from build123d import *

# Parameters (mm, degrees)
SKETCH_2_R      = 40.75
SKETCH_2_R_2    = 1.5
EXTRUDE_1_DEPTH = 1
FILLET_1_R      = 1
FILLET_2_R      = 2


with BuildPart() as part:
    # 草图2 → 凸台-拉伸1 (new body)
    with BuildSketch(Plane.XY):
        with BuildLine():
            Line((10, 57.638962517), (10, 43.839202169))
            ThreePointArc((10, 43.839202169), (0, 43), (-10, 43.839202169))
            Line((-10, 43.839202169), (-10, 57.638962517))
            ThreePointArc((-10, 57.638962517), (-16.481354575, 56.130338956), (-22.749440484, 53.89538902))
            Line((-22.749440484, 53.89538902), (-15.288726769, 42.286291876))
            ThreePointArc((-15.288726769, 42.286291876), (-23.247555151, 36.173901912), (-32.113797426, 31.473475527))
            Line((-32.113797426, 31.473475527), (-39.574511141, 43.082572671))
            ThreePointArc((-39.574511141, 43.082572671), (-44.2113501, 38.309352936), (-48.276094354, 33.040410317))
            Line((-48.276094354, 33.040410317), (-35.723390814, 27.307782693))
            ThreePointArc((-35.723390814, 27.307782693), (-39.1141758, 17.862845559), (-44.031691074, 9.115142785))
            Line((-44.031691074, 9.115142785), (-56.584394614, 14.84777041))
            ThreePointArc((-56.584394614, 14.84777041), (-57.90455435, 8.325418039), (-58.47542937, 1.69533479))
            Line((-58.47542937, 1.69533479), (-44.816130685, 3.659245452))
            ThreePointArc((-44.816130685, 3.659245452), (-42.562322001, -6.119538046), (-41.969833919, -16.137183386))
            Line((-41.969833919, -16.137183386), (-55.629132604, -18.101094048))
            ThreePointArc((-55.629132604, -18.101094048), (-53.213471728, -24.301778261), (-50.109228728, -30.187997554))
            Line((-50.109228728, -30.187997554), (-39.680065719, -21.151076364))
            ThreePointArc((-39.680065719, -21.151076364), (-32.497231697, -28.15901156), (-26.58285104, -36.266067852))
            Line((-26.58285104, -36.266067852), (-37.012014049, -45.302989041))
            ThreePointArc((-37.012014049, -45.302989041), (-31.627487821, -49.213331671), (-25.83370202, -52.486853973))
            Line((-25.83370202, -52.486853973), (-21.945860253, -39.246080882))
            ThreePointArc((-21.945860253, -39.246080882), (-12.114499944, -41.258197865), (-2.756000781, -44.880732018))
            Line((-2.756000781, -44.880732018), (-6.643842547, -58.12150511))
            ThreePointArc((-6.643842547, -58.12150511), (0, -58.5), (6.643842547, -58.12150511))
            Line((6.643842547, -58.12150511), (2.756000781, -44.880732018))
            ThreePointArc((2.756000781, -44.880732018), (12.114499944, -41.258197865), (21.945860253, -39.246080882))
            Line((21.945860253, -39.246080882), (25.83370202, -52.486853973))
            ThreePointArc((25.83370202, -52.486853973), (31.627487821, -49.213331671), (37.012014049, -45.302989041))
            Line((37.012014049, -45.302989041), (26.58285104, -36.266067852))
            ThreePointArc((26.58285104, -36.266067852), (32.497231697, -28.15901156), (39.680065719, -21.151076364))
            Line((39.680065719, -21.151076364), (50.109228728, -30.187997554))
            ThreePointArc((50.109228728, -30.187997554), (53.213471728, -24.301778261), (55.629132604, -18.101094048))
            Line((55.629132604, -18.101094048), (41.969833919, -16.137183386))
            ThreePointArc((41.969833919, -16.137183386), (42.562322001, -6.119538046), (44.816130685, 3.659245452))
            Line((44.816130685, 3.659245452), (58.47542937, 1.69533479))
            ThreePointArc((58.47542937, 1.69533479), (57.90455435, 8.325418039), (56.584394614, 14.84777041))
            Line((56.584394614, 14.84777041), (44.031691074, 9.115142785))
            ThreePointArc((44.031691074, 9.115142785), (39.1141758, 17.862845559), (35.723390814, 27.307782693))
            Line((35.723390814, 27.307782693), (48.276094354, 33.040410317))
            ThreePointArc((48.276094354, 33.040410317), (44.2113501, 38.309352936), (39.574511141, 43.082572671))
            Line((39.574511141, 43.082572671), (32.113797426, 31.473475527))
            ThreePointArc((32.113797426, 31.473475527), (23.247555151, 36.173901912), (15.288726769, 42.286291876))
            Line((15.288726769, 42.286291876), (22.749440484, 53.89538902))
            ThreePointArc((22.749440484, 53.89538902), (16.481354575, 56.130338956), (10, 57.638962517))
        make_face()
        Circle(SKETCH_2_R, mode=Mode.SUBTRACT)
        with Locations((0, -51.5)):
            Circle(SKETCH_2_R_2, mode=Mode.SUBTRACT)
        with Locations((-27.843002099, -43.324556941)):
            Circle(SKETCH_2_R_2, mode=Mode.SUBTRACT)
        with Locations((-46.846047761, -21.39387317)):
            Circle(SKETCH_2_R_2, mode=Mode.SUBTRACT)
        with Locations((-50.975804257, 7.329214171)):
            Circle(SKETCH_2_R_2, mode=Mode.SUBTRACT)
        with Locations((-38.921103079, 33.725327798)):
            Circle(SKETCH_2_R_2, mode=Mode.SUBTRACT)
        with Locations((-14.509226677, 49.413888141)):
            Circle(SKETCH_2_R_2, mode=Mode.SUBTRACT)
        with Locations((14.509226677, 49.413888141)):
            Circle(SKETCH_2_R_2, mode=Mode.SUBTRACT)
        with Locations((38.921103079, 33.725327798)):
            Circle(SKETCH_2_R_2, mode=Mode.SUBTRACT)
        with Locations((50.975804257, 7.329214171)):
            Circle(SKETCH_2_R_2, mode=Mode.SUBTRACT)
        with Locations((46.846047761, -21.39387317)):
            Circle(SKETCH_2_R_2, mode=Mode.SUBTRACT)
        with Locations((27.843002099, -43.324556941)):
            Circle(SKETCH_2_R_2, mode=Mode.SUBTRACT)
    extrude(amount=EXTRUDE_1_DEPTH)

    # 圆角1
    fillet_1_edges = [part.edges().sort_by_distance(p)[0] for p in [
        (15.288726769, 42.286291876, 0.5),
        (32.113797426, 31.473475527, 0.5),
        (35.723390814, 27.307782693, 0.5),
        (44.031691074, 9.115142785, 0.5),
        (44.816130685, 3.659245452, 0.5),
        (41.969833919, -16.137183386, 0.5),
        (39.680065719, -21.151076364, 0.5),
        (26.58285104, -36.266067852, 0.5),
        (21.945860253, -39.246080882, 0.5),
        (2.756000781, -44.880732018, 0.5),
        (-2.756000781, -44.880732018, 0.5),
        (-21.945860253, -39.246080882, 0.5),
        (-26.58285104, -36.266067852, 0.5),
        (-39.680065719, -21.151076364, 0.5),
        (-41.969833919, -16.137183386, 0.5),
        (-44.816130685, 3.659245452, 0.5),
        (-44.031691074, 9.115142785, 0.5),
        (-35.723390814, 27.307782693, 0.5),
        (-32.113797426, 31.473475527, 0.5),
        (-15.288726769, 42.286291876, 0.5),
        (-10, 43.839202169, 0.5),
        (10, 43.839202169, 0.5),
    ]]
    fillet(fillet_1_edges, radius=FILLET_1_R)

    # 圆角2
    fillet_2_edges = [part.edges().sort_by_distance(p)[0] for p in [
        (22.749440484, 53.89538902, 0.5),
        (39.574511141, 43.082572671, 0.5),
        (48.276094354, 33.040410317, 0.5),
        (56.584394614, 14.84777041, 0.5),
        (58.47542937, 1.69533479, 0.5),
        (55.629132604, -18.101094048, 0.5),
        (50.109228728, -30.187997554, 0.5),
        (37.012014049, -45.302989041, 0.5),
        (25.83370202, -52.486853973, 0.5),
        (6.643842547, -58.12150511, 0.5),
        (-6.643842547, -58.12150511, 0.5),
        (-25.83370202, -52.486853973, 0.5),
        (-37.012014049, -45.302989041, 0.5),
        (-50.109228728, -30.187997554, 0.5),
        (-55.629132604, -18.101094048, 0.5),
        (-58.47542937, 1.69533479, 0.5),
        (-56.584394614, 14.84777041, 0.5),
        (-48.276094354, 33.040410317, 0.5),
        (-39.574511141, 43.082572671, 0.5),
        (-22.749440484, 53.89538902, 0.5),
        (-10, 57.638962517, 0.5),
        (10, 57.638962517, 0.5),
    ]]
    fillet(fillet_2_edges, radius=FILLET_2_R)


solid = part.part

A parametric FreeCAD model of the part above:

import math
import FreeCAD as App
import Part
import Sketcher

V = App.Vector
Q = App.Units.Quantity


def edges_at(feature, points):
    """Names of the edges that pass closest to the given points."""
    edges = feature.Shape.Edges
    near = lambda p: min(range(len(edges)), key=lambda i: edges[i].distToShape(Part.Vertex(*p))[0])
    return sorted({f"Edge{near(p) + 1}" for p in points})

doc = App.newDocument("Part")
body = doc.addObject("PartDesign::Body", "Body")

# Sketch on XY plane
sketch1 = doc.addObject("Sketcher::SketchObject", "Sketch")
body.addObject(sketch1)
sketch1.AttachmentSupport = (doc.XY_Plane, [""])
sketch1.MapMode = "FlatFace"
sketch1.addGeometry([
    Part.LineSegment(V(10, 57.638963, 0), V(10, 43.839202, 0)),  # 0
    Part.ArcOfCircle(Part.Circle(V(0, 103, 0), V(0, 0, 1), 60), math.radians(-99.594068), math.radians(-80.405932)),  # 1
    Part.LineSegment(V(-10, 43.839202, 0), V(-10, 57.638963, 0)),  # 2
    Part.ArcOfCircle(Part.Circle(V(0, 0, 0), V(0, 0, 1), 58.5), math.radians(99.842487), math.radians(112.884786)),  # 3
    Part.LineSegment(V(-22.74944, 53.895389, 0), V(-15.288727, 42.286292, 0)),  # 4
    Part.ArcOfCircle(Part.Circle(V(-55.686004, 86.649114, 0), V(0, 0, 1), 60), math.radians(-66.866796), math.radians(-47.678659)),  # 5
    Part.LineSegment(V(-32.113797, 31.473476, 0), V(-39.574511, 43.082573, 0)),  # 6
    Part.ArcOfCircle(Part.Circle(V(0, 0, 0), V(0, 0, 1), 58.5), math.radians(132.56976), math.radians(145.612058)),  # 7
    Part.LineSegment(V(-48.276094, 33.04041, 0), V(-35.723391, 27.307783, 0)),  # 8
    Part.ArcOfCircle(Part.Circle(V(-93.692095, 42.787746, 0), V(0, 0, 1), 60), math.radians(-34.139523), math.radians(-14.951386)),  # 9
    Part.LineSegment(V(-44.031691, 9.115143, 0), V(-56.584395, 14.84777, 0)),  # 10
    Part.ArcOfCircle(Part.Circle(V(0, 0, 0), V(0, 0, 1), 58.5), math.radians(165.297033), math.radians(178.339331)),  # 11
    Part.LineSegment(V(-58.475429, 1.695335, 0), V(-44.816131, 3.659245, 0)),  # 12
    Part.ArcOfCircle(Part.Circle(V(-101.951609, -14.658428, 0), V(0, 0, 1), 60), math.radians(-1.41225), math.radians(17.775886)),  # 13
    Part.LineSegment(V(-41.969834, -16.137183, 0), V(-55.629133, -18.101094, 0)),  # 14
    Part.ArcOfCircle(Part.Circle(V(0, 0, 0), V(0, 0, 1), 58.5), math.radians(-161.975695), math.radians(-148.933396)),  # 15
    Part.LineSegment(V(-50.109229, -30.187998, 0), V(-39.680066, -21.151076, 0)),  # 16
    Part.ArcOfCircle(Part.Circle(V(-77.842206, -67.450656, 0), V(0, 0, 1), 60), math.radians(31.315023), math.radians(50.503159)),  # 17
    Part.LineSegment(V(-26.582851, -36.266068, 0), V(-37.012014, -45.302989, 0)),  # 18
    Part.ArcOfCircle(Part.Circle(V(0, 0, 0), V(0, 0, 1), 58.5), math.radians(-129.248422), math.radians(-116.206123)),  # 19
    Part.LineSegment(V(-25.833702, -52.486854, 0), V(-21.94586, -39.246081, 0)),  # 20
    Part.ArcOfCircle(Part.Circle(V(-29.018453, -98.827776, 0), V(0, 0, 1), 60), math.radians(64.042295), math.radians(83.230432)),  # 21
    Part.LineSegment(V(-2.756001, -44.880732, 0), V(-6.643843, -58.121505, 0)),  # 22
    Part.ArcOfCircle(Part.Circle(V(0, 0, 0), V(0, 0, 1), 58.5), math.radians(-96.521149), math.radians(-83.478851)),  # 23
    Part.LineSegment(V(6.643843, -58.121505, 0), V(2.756001, -44.880732, 0)),  # 24
    Part.ArcOfCircle(Part.Circle(V(29.018453, -98.827776, 0), V(0, 0, 1), 60), math.radians(96.769568), math.radians(115.957705)),  # 25
    Part.LineSegment(V(21.94586, -39.246081, 0), V(25.833702, -52.486854, 0)),  # 26
    Part.ArcOfCircle(Part.Circle(V(0, 0, 0), V(0, 0, 1), 58.5), math.radians(-63.793877), math.radians(-50.751578)),  # 27
    Part.LineSegment(V(37.012014, -45.302989, 0), V(26.582851, -36.266068, 0)),  # 28
    Part.ArcOfCircle(Part.Circle(V(77.842206, -67.450656, 0), V(0, 0, 1), 60), math.radians(129.496841), math.radians(148.684977)),  # 29
    Part.LineSegment(V(39.680066, -21.151076, 0), V(50.109229, -30.187998, 0)),  # 30
    Part.ArcOfCircle(Part.Circle(V(0, 0, 0), V(0, 0, 1), 58.5), math.radians(-31.066604), math.radians(-18.024305)),  # 31
    Part.LineSegment(V(55.629133, -18.101094, 0), V(41.969834, -16.137183, 0)),  # 32
    Part.ArcOfCircle(Part.Circle(V(101.951609, -14.658428, 0), V(0, 0, 1), 60), math.radians(162.224114), math.radians(181.41225)),  # 33
    Part.LineSegment(V(44.816131, 3.659245, 0), V(58.475429, 1.695335, 0)),  # 34
    Part.ArcOfCircle(Part.Circle(V(0, 0, 0), V(0, 0, 1), 58.5), math.radians(1.660669), math.radians(14.702967)),  # 35
    Part.LineSegment(V(56.584395, 14.84777, 0), V(44.031691, 9.115143, 0)),  # 36
    Part.ArcOfCircle(Part.Circle(V(93.692095, 42.787746, 0), V(0, 0, 1), 60), math.radians(-165.048614), math.radians(-145.860477)),  # 37
    Part.LineSegment(V(35.723391, 27.307783, 0), V(48.276094, 33.04041, 0)),  # 38
    Part.ArcOfCircle(Part.Circle(V(0, 0, 0), V(0, 0, 1), 58.5), math.radians(34.387942), math.radians(47.43024)),  # 39
    Part.LineSegment(V(39.574511, 43.082573, 0), V(32.113797, 31.473476, 0)),  # 40
    Part.ArcOfCircle(Part.Circle(V(55.686004, 86.649114, 0), V(0, 0, 1), 60), math.radians(-132.321341), math.radians(-113.133204)),  # 41
    Part.LineSegment(V(15.288727, 42.286292, 0), V(22.74944, 53.895389, 0)),  # 42
    Part.ArcOfCircle(Part.Circle(V(0, 0, 0), V(0, 0, 1), 58.5), math.radians(67.115214), math.radians(80.157513)),  # 43
    Part.Circle(V(-27.843002, -43.324557, 0), V(0, 0, 1), 1.5),  # 44
    Part.Circle(V(-46.846048, -21.393873, 0), V(0, 0, 1), 1.5),  # 45
    Part.Circle(V(0, -51.5, 0), V(0, 0, 1), 1.5),  # 46
    Part.Circle(V(27.843002, -43.324557, 0), V(0, 0, 1), 1.5),  # 47
    Part.Circle(V(46.846048, -21.393873, 0), V(0, 0, 1), 1.5),  # 48
    Part.Circle(V(-50.975804, 7.329214, 0), V(0, 0, 1), 1.5),  # 49
    Part.Circle(V(-38.921103, 33.725328, 0), V(0, 0, 1), 1.5),  # 50
    Part.Circle(V(-14.509227, 49.413888, 0), V(0, 0, 1), 1.5),  # 51
    Part.Circle(V(0, 0, 0), V(0, 0, 1), 40.75),  # 52
    Part.Circle(V(50.975804, 7.329214, 0), V(0, 0, 1), 1.5),  # 53
    Part.Circle(V(14.509227, 49.413888, 0), V(0, 0, 1), 1.5),  # 54
    Part.Circle(V(38.921103, 33.725328, 0), V(0, 0, 1), 1.5),  # 55
], False)
sketch1.addConstraint([
    Sketcher.Constraint("Coincident", 0, 2, 1, 2),
    Sketcher.Constraint("Coincident", 1, 1, 2, 1),
    Sketcher.Constraint("Coincident", 2, 2, 3, 1),
    Sketcher.Constraint("Coincident", 3, 2, 4, 1),
    Sketcher.Constraint("Coincident", 4, 2, 5, 2),
    Sketcher.Constraint("Coincident", 5, 1, 6, 1),
    Sketcher.Constraint("Coincident", 6, 2, 7, 1),
    Sketcher.Constraint("Coincident", 7, 2, 8, 1),
    Sketcher.Constraint("Coincident", 8, 2, 9, 2),
    Sketcher.Constraint("Coincident", 9, 1, 10, 1),
    Sketcher.Constraint("Coincident", 10, 2, 11, 1),
    Sketcher.Constraint("Coincident", 11, 2, 12, 1),
    Sketcher.Constraint("Coincident", 12, 2, 13, 2),
    Sketcher.Constraint("Coincident", 13, 1, 14, 1),
    Sketcher.Constraint("Coincident", 14, 2, 15, 1),
    Sketcher.Constraint("Coincident", 15, 2, 16, 1),
    Sketcher.Constraint("Coincident", 16, 2, 17, 2),
    Sketcher.Constraint("Coincident", 17, 1, 18, 1),
    Sketcher.Constraint("Coincident", 18, 2, 19, 1),
    Sketcher.Constraint("Coincident", 19, 2, 20, 1),
    Sketcher.Constraint("Coincident", 20, 2, 21, 2),
    Sketcher.Constraint("Coincident", 21, 1, 22, 1),
    Sketcher.Constraint("Coincident", 22, 2, 23, 1),
    Sketcher.Constraint("Coincident", 23, 2, 24, 1),
    Sketcher.Constraint("Coincident", 24, 2, 25, 2),
    Sketcher.Constraint("Coincident", 25, 1, 26, 1),
    Sketcher.Constraint("Coincident", 26, 2, 27, 1),
    Sketcher.Constraint("Coincident", 27, 2, 28, 1),
    Sketcher.Constraint("Coincident", 28, 2, 29, 2),
    Sketcher.Constraint("Coincident", 29, 1, 30, 1),
    Sketcher.Constraint("Coincident", 30, 2, 31, 1),
    Sketcher.Constraint("Coincident", 31, 2, 32, 1),
    Sketcher.Constraint("Coincident", 32, 2, 33, 2),
    Sketcher.Constraint("Coincident", 33, 1, 34, 1),
    Sketcher.Constraint("Coincident", 34, 2, 35, 1),
    Sketcher.Constraint("Coincident", 35, 2, 36, 1),
    Sketcher.Constraint("Coincident", 36, 2, 37, 2),
    Sketcher.Constraint("Coincident", 37, 1, 38, 1),
    Sketcher.Constraint("Coincident", 38, 2, 39, 1),
    Sketcher.Constraint("Coincident", 39, 2, 40, 1),
    Sketcher.Constraint("Coincident", 40, 2, 41, 2),
    Sketcher.Constraint("Coincident", 41, 1, 42, 1),
    Sketcher.Constraint("Coincident", 42, 2, 43, 1),
    Sketcher.Constraint("Coincident", 43, 2, 0, 1),
    Sketcher.Constraint("Vertical", 0),
    Sketcher.Constraint("Vertical", 2),
    Sketcher.Constraint("Coincident", 3, 3, -1, 1),
    Sketcher.Constraint("Coincident", 7, 3, -1, 1),
    Sketcher.Constraint("Coincident", 11, 3, -1, 1),
    Sketcher.Constraint("Coincident", 15, 3, -1, 1),
    Sketcher.Constraint("Coincident", 19, 3, -1, 1),
    Sketcher.Constraint("Coincident", 23, 3, -1, 1),
    Sketcher.Constraint("Coincident", 27, 3, -1, 1),
    Sketcher.Constraint("Coincident", 31, 3, -1, 1),
    Sketcher.Constraint("Coincident", 35, 3, -1, 1),
    Sketcher.Constraint("Coincident", 39, 3, -1, 1),
    Sketcher.Constraint("Coincident", 43, 3, -1, 1),
    Sketcher.Constraint("Coincident", 52, 3, -1, 1),
    Sketcher.Constraint("Equal", 1, 5),
    Sketcher.Constraint("Equal", 3, 7),
    Sketcher.Constraint("Equal", 5, 9),
    Sketcher.Constraint("Equal", 7, 11),
    Sketcher.Constraint("Equal", 9, 13),
    Sketcher.Constraint("Equal", 11, 15),
    Sketcher.Constraint("Equal", 13, 17),
    Sketcher.Constraint("Equal", 15, 19),
    Sketcher.Constraint("Equal", 17, 21),
    Sketcher.Constraint("Equal", 19, 23),
    Sketcher.Constraint("Equal", 21, 25),
    Sketcher.Constraint("Equal", 23, 27),
    Sketcher.Constraint("Equal", 25, 29),
    Sketcher.Constraint("Equal", 27, 31),
    Sketcher.Constraint("Equal", 29, 33),
    Sketcher.Constraint("Equal", 31, 35),
    Sketcher.Constraint("Equal", 33, 37),
    Sketcher.Constraint("Equal", 35, 39),
    Sketcher.Constraint("Equal", 37, 41),
    Sketcher.Constraint("Equal", 39, 43),
    Sketcher.Constraint("Equal", 44, 45),
    Sketcher.Constraint("Equal", 45, 46),
    Sketcher.Constraint("Equal", 46, 47),
    Sketcher.Constraint("Equal", 47, 48),
    Sketcher.Constraint("Equal", 48, 49),
    Sketcher.Constraint("Equal", 49, 50),
    Sketcher.Constraint("Equal", 50, 51),
    Sketcher.Constraint("Equal", 51, 53),
    Sketcher.Constraint("Equal", 53, 54),
    Sketcher.Constraint("Equal", 54, 55),
    Sketcher.Constraint("Symmetric", 21, 3, 25, 3, -2),
    Sketcher.Constraint("Symmetric", 17, 3, 29, 3, -2),
    Sketcher.Constraint("Symmetric", 13, 3, 33, 3, -2),
    Sketcher.Constraint("Symmetric", 9, 3, 37, 3, -2),
    Sketcher.Constraint("Symmetric", 5, 3, 41, 3, -2),
    Sketcher.Constraint("Symmetric", 44, 3, 47, 3, -2),
    Sketcher.Constraint("Symmetric", 45, 3, 48, 3, -2),
    Sketcher.Constraint("Symmetric", 49, 3, 53, 3, -2),
    Sketcher.Constraint("Symmetric", 51, 3, 54, 3, -2),
    Sketcher.Constraint("Symmetric", 50, 3, 55, 3, -2),
    Sketcher.Constraint("Symmetric", 0, 2, 1, 1, -2),
    Sketcher.Constraint("PointOnObject", 46, 3, -2),
    Sketcher.Constraint("Parallel", 4, 6),
    Sketcher.Constraint("Parallel", 8, 10),
    Sketcher.Constraint("Parallel", 12, 14),
    Sketcher.Constraint("Parallel", 16, 18),
    Sketcher.Constraint("Parallel", 20, 22),
    Sketcher.Constraint("Parallel", 24, 26),
    Sketcher.Constraint("Parallel", 28, 30),
    Sketcher.Constraint("Parallel", 32, 34),
    Sketcher.Constraint("Parallel", 36, 38),
    Sketcher.Constraint("Parallel", 40, 42),
    Sketcher.Constraint("Horizontal", 22, 2, 23, 2),
    Sketcher.Constraint("Horizontal", 21, 1, 24, 2),
    Sketcher.Constraint("Horizontal", 20, 2, 25, 1),
    Sketcher.Constraint("Horizontal", 18, 2, 27, 2),
    Sketcher.Constraint("Horizontal", 17, 1, 28, 2),
    Sketcher.Constraint("Horizontal", 16, 2, 29, 1),
    Sketcher.Constraint("Horizontal", 14, 2, 31, 2),
    Sketcher.Constraint("Horizontal", 13, 1, 32, 2),
    Sketcher.Constraint("Horizontal", 12, 2, 33, 1),
    Sketcher.Constraint("Horizontal", 10, 2, 35, 2),
    Sketcher.Constraint("Horizontal", 9, 1, 36, 2),
    Sketcher.Constraint("Horizontal", 8, 2, 37, 1),
    Sketcher.Constraint("Horizontal", 6, 2, 39, 2),
    Sketcher.Constraint("Horizontal", 5, 1, 40, 2),
    Sketcher.Constraint("Horizontal", 4, 2, 41, 1),
    Sketcher.Constraint("Equal", 4, 6),
    Sketcher.Constraint("Equal", 6, 8),
    Sketcher.Constraint("Equal", 8, 10),
    Sketcher.Constraint("Equal", 10, 12),
    Sketcher.Constraint("Equal", 12, 14),
    Sketcher.Constraint("Equal", 14, 16),
    Sketcher.Constraint("Equal", 16, 18),
    Sketcher.Constraint("Equal", 18, 20),
    Sketcher.Constraint("Equal", 20, 22),
    Sketcher.Constraint("Diameter", 44, Q("3 mm")),
    Sketcher.Constraint("Radius", 1, Q("60 mm")),
    Sketcher.Constraint("Diameter", 52, Q("81.5 mm")),
    Sketcher.Constraint("Radius", 3, Q("58.5 mm")),
    Sketcher.Constraint("DistanceY", -1, 1, 1, 3, Q("103 mm")),
    Sketcher.Constraint("DistanceX", -1, 1, 0, 2, Q("10 mm")),
    Sketcher.Constraint("DistanceY", 46, 3, -1, 1, Q("51.5 mm")),
    Sketcher.Constraint("DistanceX", 21, 1, -1, 1, Q("2.756001 mm")),
    Sketcher.Constraint("Distance", 4, Q("13.79976 mm")),
    Sketcher.Constraint("DistanceX", 13, 3, -1, 1, Q("101.951609 mm")),
    Sketcher.Constraint("DistanceY", 13, 3, -1, 1, Q("14.658428 mm")),
    Sketcher.Constraint("DistanceY", -1, 1, 51, 3, Q("49.413888 mm")),
    Sketcher.Constraint("DistanceX", 3, 2, -1, 1, Q("22.74944 mm")),
    Sketcher.Constraint("DistanceY", -1, 1, 4, 2, Q("42.286292 mm")),
    Sketcher.Constraint("DistanceX", 6, 2, -1, 1, Q("39.574511 mm")),
    Sketcher.Constraint("DistanceY", -1, 1, 7, 2, Q("33.04041 mm")),
    Sketcher.Constraint("DistanceX", 8, 2, -1, 1, Q("35.723391 mm")),
    Sketcher.Constraint("DistanceX", 9, 1, -1, 1, Q("44.031691 mm")),
    Sketcher.Constraint("DistanceX", 11, 2, -1, 1, Q("58.475429 mm")),
    Sketcher.Constraint("DistanceX", 15, 2, -1, 1, Q("50.109229 mm")),
    Sketcher.Constraint("DistanceX", 17, 1, -1, 1, Q("26.582851 mm")),
    Sketcher.Constraint("DistanceY", 18, 2, -1, 1, Q("45.302989 mm")),
    Sketcher.Constraint("DistanceX", 20, 2, -1, 1, Q("21.94586 mm")),
    Sketcher.Constraint("DistanceY", 20, 2, -1, 1, Q("39.246081 mm")),
    Sketcher.Constraint("DistanceX", 44, 3, -1, 1, Q("27.843002 mm")),
    Sketcher.Constraint("DistanceY", 44, 3, -1, 1, Q("43.324557 mm")),
    Sketcher.Constraint("DistanceX", 45, 3, -1, 1, Q("46.846048 mm")),
    Sketcher.Constraint("DistanceY", 45, 3, -1, 1, Q("21.393873 mm")),
    Sketcher.Constraint("DistanceX", 49, 3, -1, 1, Q("50.975804 mm")),
    Sketcher.Constraint("DistanceY", -1, 1, 49, 3, Q("7.329214 mm")),
    Sketcher.Constraint("DistanceX", 50, 3, -1, 1, Q("38.921103 mm")),
    Sketcher.Constraint("DistanceY", -1, 1, 50, 3, Q("33.725328 mm")),
    Sketcher.Constraint("DistanceX", 51, 3, -1, 1, Q("14.509227 mm")),
])
pad1 = doc.addObject("PartDesign::Pad", "Pad")
body.addObject(pad1)
pad1.Profile = sketch1
pad1.Length = 1
doc.recompute()

fillet = doc.addObject("PartDesign::Fillet", "Fillet")
body.addObject(fillet)
fillet.Base = (pad1, edges_at(pad1, [
    (15.289, 42.286, 0.5),
    (32.114, 31.473, 0.5),
    (35.723, 27.308, 0.5),
    (44.032, 9.115, 0.5),
    (44.816, 3.659, 0.5),
    (41.97, -16.137, 0.5),
    (39.68, -21.151, 0.5),
    (26.583, -36.266, 0.5),
    (21.946, -39.246, 0.5),
    (2.756, -44.881, 0.5),
    (-2.756, -44.881, 0.5),
    (-21.946, -39.246, 0.5),
    (-26.583, -36.266, 0.5),
    (-39.68, -21.151, 0.5),
    (-41.97, -16.137, 0.5),
    (-44.816, 3.659, 0.5),
    (-44.032, 9.115, 0.5),
    (-35.723, 27.308, 0.5),
    (-32.114, 31.473, 0.5),
    (-15.289, 42.286, 0.5),
    (-10, 43.839, 0.5),
    (10, 43.839, 0.5),
]))
fillet.Radius = 1
doc.recompute()

fillet2 = doc.addObject("PartDesign::Fillet", "Fillet001")
body.addObject(fillet2)
fillet2.Base = (fillet, edges_at(fillet, [
    (22.749, 53.895, 0.5),
    (39.575, 43.083, 0.5),
    (48.276, 33.04, 0.5),
    (56.584, 14.848, 0.5),
    (58.475, 1.695, 0.5),
    (55.629, -18.101, 0.5),
    (50.109, -30.188, 0.5),
    (37.012, -45.303, 0.5),
    (25.834, -52.487, 0.5),
    (6.644, -58.122, 0.5),
    (-6.644, -58.122, 0.5),
    (-25.834, -52.487, 0.5),
    (-37.012, -45.303, 0.5),
    (-50.109, -30.188, 0.5),
    (-55.629, -18.101, 0.5),
    (-58.475, 1.695, 0.5),
    (-56.584, 14.848, 0.5),
    (-48.276, 33.04, 0.5),
    (-39.575, 43.083, 0.5),
    (-22.749, 53.895, 0.5),
    (-10, 57.639, 0.5),
    (10, 57.639, 0.5),
]))
fillet2.Radius = 2

doc.recompute()
